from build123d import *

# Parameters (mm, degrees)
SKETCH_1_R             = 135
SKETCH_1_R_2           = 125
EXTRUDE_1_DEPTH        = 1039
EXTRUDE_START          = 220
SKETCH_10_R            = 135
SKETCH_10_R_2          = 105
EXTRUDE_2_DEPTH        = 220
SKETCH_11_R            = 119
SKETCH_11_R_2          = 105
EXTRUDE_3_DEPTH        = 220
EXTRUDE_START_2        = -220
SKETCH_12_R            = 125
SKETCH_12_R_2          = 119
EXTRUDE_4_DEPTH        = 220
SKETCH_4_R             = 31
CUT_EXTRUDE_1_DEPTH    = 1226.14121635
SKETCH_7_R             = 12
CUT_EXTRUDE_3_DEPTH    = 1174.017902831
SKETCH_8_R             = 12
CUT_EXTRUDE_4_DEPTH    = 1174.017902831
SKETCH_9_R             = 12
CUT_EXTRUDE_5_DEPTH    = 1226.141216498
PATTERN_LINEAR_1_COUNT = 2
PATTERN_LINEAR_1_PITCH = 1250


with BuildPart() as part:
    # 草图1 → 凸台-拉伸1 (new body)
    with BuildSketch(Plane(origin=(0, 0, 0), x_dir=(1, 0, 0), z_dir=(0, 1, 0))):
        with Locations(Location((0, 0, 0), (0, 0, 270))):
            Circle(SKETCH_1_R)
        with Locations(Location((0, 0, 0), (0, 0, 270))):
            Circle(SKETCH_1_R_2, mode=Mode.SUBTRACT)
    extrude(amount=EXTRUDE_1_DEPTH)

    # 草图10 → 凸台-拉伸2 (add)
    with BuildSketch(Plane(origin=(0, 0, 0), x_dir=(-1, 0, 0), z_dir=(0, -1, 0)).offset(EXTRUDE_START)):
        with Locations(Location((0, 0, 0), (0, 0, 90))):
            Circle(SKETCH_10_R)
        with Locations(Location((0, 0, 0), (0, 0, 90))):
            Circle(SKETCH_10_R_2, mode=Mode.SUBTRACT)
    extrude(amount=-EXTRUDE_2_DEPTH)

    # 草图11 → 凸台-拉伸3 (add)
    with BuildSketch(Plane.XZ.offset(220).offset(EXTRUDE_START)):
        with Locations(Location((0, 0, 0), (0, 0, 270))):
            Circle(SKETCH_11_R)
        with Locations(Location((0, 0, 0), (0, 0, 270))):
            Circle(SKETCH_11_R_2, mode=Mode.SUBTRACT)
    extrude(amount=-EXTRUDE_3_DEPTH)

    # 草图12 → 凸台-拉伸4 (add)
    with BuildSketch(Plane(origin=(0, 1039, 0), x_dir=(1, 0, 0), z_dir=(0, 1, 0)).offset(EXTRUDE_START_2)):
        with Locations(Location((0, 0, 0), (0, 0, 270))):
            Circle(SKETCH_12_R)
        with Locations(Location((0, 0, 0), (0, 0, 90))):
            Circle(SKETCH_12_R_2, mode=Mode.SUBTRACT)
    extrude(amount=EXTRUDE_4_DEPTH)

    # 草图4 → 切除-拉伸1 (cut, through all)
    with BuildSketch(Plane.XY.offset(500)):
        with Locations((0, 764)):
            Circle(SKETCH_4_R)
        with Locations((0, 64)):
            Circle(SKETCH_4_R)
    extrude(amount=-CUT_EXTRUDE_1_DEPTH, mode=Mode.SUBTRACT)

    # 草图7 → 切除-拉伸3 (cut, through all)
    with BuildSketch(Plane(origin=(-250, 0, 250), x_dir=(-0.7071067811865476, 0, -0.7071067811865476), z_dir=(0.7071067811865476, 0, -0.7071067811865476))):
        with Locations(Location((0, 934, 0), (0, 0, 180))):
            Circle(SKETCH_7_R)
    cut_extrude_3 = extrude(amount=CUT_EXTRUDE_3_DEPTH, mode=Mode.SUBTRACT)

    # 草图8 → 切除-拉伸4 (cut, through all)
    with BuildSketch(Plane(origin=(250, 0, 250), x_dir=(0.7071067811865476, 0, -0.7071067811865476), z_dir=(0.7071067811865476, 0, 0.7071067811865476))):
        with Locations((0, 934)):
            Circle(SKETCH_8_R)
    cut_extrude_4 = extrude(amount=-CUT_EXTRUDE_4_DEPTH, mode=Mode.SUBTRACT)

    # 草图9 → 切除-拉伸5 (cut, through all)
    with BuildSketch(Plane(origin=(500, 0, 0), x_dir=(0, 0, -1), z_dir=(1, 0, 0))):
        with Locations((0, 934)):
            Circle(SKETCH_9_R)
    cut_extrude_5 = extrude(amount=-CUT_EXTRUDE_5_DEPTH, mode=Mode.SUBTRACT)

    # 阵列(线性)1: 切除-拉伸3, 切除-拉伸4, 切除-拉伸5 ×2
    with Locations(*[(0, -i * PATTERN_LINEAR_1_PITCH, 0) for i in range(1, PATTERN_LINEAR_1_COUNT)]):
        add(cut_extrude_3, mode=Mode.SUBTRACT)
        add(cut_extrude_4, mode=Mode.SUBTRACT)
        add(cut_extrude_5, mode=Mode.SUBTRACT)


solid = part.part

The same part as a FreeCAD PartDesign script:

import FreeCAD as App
import Part
import Sketcher

V = App.Vector
Q = App.Units.Quantity

doc = App.newDocument("Part")
body = doc.addObject("PartDesign::Body", "Body")

# Sketch on XZ plane
sketch1 = body.newObject("Sketcher::SketchObject", "Sketch")
sketch1.AttachmentSupport = (doc.getObject("XZ_Plane"), [""])
sketch1.MapMode = "FlatFace"
sketch1.addGeometry([
    Part.Circle(V(0, 0, 0), V(0, 0, 1), 135),
    Part.Circle(V(0, 0, 0), V(0, 0, 1), 125),
], False)
sketch1.addConstraint([
    Sketcher.Constraint("Coincident", 0, 3, -1, 1),
    Sketcher.Constraint("Coincident", 1, 3, -1, 1),
    Sketcher.Constraint("Diameter", 0, Q("270 mm")),
    Sketcher.Constraint("Diameter", 1, Q("250 mm")),
])
pad1 = body.newObject("PartDesign::Pad", "Pad")
pad1.Profile = sketch1
pad1.Length = 1039
pad1.Reversed = True

# Sketch on XZ plane
sketch2 = body.newObject("Sketcher::SketchObject", "Sketch001")
sketch2.AttachmentSupport = (doc.getObject("XZ_Plane"), [""])
sketch2.MapMode = "FlatFace"
sketch2.AttachmentOffset = App.Placement(V(0, 0, 220), App.Rotation())
sketch2.addGeometry([
    Part.Circle(V(0, 0, 0), V(0, 0, 1), 135),
    Part.Circle(V(0, 0, 0), V(0, 0, 1), 105),
], False)
sketch2.addConstraint([
    Sketcher.Constraint("Coincident", 0, 3, -1, 1),
    Sketcher.Constraint("Coincident", 1, 3, -1, 1),
    Sketcher.Constraint("Diameter", 0, Q("270 mm")),
    Sketcher.Constraint("Diameter", 1, Q("210 mm")),
])
pad2 = body.newObject("PartDesign::Pad", "Pad001")
pad2.Profile = sketch2
pad2.Length = 220
pad2.Reversed = True

# Sketch on XZ plane
sketch3 = body.newObject("Sketcher::SketchObject", "Sketch002")
sketch3.AttachmentSupport = (doc.getObject("XZ_Plane"), [""])
sketch3.MapMode = "FlatFace"
sketch3.AttachmentOffset = App.Placement(V(0, 0, 440), App.Rotation())
sketch3.addGeometry([
    Part.Circle(V(0, 0, 0), V(0, 0, 1), 119),
    Part.Circle(V(0, 0, 0), V(0, 0, 1), 105),
], False)
sketch3.addConstraint([
    Sketcher.Constraint("Coincident", 0, 3, -1, 1),
    Sketcher.Constraint("Coincident", 1, 3, -1, 1),
    Sketcher.Constraint("Diameter", 0, Q("238 mm")),
    Sketcher.Constraint("Diameter", 1, Q("210 mm")),
])
pad3 = body.newObject("PartDesign::Pad", "Pad002")
pad3.Profile = sketch3
pad3.Length = 220
pad3.Reversed = True

# Sketch on XZ plane
sketch4 = body.newObject("Sketcher::SketchObject", "Sketch003")
sketch4.AttachmentSupport = (doc.getObject("XZ_Plane"), [""])
sketch4.MapMode = "FlatFace"
sketch4.AttachmentOffset = App.Placement(V(0, 0, -819), App.Rotation())
sketch4.addGeometry([
    Part.Circle(V(0, 0, 0), V(0, 0, 1), 125),
    Part.Circle(V(0, 0, 0), V(0, 0, 1), 119),
], False)
sketch4.addConstraint([
    Sketcher.Constraint("Coincident", 0, 3, -1, 1),
    Sketcher.Constraint("Coincident", 1, 3, -1, 1),
    Sketcher.Constraint("Diameter", 0, Q("250 mm")),
    Sketcher.Constraint("Diameter", 1, Q("238 mm")),
])
pad4 = body.newObject("PartDesign::Pad", "Pad003")
pad4.Profile = sketch4
pad4.Length = 220
pad4.Reversed = True

# Sketch on XY plane
sketch5 = body.newObject("Sketcher::SketchObject", "Sketch004")
sketch5.AttachmentSupport = (doc.getObject("XY_Plane"), [""])
sketch5.MapMode = "FlatFace"
sketch5.AttachmentOffset = App.Placement(V(0, 0, 500), App.Rotation())
sketch5.addGeometry([
    Part.Circle(V(0, 764, 0), V(0, 0, 1), 31),
    Part.Circle(V(0, 64, 0), V(0, 0, 1), 31),
], False)
sketch5.addConstraint([
    Sketcher.Constraint("Equal", 0, 1),
    Sketcher.Constraint("PointOnObject", 0, 3, -2),
    Sketcher.Constraint("PointOnObject", 1, 3, -2),
    Sketcher.Constraint("Diameter", 0, Q("62 mm")),
    Sketcher.Constraint("DistanceY", -1, 1, 0, 3, Q("764 mm")),
    Sketcher.Constraint("DistanceY", -1, 1, 1, 3, Q("64 mm")),
])
pocket1 = body.newObject("PartDesign::Pocket", "Pocket")
pocket1.Profile = sketch5
pocket1.Type = "ThroughAll"

# Sketch on an angled plane
sketch6 = body.newObject("Sketcher::SketchObject", "Sketch005")
sketch6.Placement = App.Placement(V(-250, 0, 250), App.Rotation(V(-0.707106781, 0, -0.707106781), V(0, 0.999999999, 0), V(0.707106781, 0, -0.707106781), "ZXY"))
sketch6.addGeometry(Part.Circle(V(0, 933.999999, 0), V(0, 0, 1), 12), False)
sketch6.addConstraint([
    Sketcher.Constraint("PointOnObject", 0, 3, -2),
    Sketcher.Constraint("Diameter", 0, Q("24 mm")),
    Sketcher.Constraint("DistanceY", -1, 1, 0, 3, Q("933.999999 mm")),
])
pocket2 = body.newObject("PartDesign::Pocket", "Pocket001")
pocket2.Profile = sketch6
pocket2.Type = "ThroughAll"
pocket2.Reversed = True

# Sketch on an angled plane
sketch7 = body.newObject("Sketcher::SketchObject", "Sketch006")
sketch7.Placement = App.Placement(V(250, 0, 250), App.Rotation(V(0.707106781, 0, -0.707106781), V(0, 0.999999999, 0), V(0.707106781, 0, 0.707106781), "ZXY"))
sketch7.addGeometry(Part.Circle(V(0, 933.999999, 0), V(0, 0, 1), 12), False)
sketch7.addConstraint([
    Sketcher.Constraint("PointOnObject", 0, 3, -2),
    Sketcher.Constraint("Diameter", 0, Q("24 mm")),
    Sketcher.Constraint("DistanceY", -1, 1, 0, 3, Q("933.999999 mm")),
])
pocket3 = body.newObject("PartDesign::Pocket", "Pocket002")
pocket3.Profile = sketch7
pocket3.Type = "ThroughAll"

# Sketch on YZ plane
sketch8 = body.newObject("Sketcher::SketchObject", "Sketch007")
sketch8.AttachmentSupport = (doc.getObject("YZ_Plane"), [""])
sketch8.MapMode = "FlatFace"
sketch8.AttachmentOffset = App.Placement(V(0, 0, 500), App.Rotation())
sketch8.addGeometry(Part.Circle(V(934, 0, 0), V(0, 0, 1), 12), False)
sketch8.addConstraint([
    Sketcher.Constraint("PointOnObject", 0, 3, -1),
    Sketcher.Constraint("Diameter", 0, Q("24 mm")),
    Sketcher.Constraint("DistanceX", -1, 1, 0, 3, Q("934 mm")),
])
pocket4 = body.newObject("PartDesign::Pocket", "Pocket003")
pocket4.Profile = sketch8
pocket4.Type = "ThroughAll"
doc.recompute()

linearpattern = body.newObject("PartDesign::LinearPattern", "LinearPattern")
linearpattern.Originals = [pocket2, pocket3, pocket4]
linearpattern.Direction = (doc.getObject("Y_Axis"), [""])
linearpattern.Mode = "offset"
linearpattern.Offset = 1250
linearpattern.Occurrences = 2
linearpattern.Reversed = True
body.Tip = linearpattern

doc.recompute()
